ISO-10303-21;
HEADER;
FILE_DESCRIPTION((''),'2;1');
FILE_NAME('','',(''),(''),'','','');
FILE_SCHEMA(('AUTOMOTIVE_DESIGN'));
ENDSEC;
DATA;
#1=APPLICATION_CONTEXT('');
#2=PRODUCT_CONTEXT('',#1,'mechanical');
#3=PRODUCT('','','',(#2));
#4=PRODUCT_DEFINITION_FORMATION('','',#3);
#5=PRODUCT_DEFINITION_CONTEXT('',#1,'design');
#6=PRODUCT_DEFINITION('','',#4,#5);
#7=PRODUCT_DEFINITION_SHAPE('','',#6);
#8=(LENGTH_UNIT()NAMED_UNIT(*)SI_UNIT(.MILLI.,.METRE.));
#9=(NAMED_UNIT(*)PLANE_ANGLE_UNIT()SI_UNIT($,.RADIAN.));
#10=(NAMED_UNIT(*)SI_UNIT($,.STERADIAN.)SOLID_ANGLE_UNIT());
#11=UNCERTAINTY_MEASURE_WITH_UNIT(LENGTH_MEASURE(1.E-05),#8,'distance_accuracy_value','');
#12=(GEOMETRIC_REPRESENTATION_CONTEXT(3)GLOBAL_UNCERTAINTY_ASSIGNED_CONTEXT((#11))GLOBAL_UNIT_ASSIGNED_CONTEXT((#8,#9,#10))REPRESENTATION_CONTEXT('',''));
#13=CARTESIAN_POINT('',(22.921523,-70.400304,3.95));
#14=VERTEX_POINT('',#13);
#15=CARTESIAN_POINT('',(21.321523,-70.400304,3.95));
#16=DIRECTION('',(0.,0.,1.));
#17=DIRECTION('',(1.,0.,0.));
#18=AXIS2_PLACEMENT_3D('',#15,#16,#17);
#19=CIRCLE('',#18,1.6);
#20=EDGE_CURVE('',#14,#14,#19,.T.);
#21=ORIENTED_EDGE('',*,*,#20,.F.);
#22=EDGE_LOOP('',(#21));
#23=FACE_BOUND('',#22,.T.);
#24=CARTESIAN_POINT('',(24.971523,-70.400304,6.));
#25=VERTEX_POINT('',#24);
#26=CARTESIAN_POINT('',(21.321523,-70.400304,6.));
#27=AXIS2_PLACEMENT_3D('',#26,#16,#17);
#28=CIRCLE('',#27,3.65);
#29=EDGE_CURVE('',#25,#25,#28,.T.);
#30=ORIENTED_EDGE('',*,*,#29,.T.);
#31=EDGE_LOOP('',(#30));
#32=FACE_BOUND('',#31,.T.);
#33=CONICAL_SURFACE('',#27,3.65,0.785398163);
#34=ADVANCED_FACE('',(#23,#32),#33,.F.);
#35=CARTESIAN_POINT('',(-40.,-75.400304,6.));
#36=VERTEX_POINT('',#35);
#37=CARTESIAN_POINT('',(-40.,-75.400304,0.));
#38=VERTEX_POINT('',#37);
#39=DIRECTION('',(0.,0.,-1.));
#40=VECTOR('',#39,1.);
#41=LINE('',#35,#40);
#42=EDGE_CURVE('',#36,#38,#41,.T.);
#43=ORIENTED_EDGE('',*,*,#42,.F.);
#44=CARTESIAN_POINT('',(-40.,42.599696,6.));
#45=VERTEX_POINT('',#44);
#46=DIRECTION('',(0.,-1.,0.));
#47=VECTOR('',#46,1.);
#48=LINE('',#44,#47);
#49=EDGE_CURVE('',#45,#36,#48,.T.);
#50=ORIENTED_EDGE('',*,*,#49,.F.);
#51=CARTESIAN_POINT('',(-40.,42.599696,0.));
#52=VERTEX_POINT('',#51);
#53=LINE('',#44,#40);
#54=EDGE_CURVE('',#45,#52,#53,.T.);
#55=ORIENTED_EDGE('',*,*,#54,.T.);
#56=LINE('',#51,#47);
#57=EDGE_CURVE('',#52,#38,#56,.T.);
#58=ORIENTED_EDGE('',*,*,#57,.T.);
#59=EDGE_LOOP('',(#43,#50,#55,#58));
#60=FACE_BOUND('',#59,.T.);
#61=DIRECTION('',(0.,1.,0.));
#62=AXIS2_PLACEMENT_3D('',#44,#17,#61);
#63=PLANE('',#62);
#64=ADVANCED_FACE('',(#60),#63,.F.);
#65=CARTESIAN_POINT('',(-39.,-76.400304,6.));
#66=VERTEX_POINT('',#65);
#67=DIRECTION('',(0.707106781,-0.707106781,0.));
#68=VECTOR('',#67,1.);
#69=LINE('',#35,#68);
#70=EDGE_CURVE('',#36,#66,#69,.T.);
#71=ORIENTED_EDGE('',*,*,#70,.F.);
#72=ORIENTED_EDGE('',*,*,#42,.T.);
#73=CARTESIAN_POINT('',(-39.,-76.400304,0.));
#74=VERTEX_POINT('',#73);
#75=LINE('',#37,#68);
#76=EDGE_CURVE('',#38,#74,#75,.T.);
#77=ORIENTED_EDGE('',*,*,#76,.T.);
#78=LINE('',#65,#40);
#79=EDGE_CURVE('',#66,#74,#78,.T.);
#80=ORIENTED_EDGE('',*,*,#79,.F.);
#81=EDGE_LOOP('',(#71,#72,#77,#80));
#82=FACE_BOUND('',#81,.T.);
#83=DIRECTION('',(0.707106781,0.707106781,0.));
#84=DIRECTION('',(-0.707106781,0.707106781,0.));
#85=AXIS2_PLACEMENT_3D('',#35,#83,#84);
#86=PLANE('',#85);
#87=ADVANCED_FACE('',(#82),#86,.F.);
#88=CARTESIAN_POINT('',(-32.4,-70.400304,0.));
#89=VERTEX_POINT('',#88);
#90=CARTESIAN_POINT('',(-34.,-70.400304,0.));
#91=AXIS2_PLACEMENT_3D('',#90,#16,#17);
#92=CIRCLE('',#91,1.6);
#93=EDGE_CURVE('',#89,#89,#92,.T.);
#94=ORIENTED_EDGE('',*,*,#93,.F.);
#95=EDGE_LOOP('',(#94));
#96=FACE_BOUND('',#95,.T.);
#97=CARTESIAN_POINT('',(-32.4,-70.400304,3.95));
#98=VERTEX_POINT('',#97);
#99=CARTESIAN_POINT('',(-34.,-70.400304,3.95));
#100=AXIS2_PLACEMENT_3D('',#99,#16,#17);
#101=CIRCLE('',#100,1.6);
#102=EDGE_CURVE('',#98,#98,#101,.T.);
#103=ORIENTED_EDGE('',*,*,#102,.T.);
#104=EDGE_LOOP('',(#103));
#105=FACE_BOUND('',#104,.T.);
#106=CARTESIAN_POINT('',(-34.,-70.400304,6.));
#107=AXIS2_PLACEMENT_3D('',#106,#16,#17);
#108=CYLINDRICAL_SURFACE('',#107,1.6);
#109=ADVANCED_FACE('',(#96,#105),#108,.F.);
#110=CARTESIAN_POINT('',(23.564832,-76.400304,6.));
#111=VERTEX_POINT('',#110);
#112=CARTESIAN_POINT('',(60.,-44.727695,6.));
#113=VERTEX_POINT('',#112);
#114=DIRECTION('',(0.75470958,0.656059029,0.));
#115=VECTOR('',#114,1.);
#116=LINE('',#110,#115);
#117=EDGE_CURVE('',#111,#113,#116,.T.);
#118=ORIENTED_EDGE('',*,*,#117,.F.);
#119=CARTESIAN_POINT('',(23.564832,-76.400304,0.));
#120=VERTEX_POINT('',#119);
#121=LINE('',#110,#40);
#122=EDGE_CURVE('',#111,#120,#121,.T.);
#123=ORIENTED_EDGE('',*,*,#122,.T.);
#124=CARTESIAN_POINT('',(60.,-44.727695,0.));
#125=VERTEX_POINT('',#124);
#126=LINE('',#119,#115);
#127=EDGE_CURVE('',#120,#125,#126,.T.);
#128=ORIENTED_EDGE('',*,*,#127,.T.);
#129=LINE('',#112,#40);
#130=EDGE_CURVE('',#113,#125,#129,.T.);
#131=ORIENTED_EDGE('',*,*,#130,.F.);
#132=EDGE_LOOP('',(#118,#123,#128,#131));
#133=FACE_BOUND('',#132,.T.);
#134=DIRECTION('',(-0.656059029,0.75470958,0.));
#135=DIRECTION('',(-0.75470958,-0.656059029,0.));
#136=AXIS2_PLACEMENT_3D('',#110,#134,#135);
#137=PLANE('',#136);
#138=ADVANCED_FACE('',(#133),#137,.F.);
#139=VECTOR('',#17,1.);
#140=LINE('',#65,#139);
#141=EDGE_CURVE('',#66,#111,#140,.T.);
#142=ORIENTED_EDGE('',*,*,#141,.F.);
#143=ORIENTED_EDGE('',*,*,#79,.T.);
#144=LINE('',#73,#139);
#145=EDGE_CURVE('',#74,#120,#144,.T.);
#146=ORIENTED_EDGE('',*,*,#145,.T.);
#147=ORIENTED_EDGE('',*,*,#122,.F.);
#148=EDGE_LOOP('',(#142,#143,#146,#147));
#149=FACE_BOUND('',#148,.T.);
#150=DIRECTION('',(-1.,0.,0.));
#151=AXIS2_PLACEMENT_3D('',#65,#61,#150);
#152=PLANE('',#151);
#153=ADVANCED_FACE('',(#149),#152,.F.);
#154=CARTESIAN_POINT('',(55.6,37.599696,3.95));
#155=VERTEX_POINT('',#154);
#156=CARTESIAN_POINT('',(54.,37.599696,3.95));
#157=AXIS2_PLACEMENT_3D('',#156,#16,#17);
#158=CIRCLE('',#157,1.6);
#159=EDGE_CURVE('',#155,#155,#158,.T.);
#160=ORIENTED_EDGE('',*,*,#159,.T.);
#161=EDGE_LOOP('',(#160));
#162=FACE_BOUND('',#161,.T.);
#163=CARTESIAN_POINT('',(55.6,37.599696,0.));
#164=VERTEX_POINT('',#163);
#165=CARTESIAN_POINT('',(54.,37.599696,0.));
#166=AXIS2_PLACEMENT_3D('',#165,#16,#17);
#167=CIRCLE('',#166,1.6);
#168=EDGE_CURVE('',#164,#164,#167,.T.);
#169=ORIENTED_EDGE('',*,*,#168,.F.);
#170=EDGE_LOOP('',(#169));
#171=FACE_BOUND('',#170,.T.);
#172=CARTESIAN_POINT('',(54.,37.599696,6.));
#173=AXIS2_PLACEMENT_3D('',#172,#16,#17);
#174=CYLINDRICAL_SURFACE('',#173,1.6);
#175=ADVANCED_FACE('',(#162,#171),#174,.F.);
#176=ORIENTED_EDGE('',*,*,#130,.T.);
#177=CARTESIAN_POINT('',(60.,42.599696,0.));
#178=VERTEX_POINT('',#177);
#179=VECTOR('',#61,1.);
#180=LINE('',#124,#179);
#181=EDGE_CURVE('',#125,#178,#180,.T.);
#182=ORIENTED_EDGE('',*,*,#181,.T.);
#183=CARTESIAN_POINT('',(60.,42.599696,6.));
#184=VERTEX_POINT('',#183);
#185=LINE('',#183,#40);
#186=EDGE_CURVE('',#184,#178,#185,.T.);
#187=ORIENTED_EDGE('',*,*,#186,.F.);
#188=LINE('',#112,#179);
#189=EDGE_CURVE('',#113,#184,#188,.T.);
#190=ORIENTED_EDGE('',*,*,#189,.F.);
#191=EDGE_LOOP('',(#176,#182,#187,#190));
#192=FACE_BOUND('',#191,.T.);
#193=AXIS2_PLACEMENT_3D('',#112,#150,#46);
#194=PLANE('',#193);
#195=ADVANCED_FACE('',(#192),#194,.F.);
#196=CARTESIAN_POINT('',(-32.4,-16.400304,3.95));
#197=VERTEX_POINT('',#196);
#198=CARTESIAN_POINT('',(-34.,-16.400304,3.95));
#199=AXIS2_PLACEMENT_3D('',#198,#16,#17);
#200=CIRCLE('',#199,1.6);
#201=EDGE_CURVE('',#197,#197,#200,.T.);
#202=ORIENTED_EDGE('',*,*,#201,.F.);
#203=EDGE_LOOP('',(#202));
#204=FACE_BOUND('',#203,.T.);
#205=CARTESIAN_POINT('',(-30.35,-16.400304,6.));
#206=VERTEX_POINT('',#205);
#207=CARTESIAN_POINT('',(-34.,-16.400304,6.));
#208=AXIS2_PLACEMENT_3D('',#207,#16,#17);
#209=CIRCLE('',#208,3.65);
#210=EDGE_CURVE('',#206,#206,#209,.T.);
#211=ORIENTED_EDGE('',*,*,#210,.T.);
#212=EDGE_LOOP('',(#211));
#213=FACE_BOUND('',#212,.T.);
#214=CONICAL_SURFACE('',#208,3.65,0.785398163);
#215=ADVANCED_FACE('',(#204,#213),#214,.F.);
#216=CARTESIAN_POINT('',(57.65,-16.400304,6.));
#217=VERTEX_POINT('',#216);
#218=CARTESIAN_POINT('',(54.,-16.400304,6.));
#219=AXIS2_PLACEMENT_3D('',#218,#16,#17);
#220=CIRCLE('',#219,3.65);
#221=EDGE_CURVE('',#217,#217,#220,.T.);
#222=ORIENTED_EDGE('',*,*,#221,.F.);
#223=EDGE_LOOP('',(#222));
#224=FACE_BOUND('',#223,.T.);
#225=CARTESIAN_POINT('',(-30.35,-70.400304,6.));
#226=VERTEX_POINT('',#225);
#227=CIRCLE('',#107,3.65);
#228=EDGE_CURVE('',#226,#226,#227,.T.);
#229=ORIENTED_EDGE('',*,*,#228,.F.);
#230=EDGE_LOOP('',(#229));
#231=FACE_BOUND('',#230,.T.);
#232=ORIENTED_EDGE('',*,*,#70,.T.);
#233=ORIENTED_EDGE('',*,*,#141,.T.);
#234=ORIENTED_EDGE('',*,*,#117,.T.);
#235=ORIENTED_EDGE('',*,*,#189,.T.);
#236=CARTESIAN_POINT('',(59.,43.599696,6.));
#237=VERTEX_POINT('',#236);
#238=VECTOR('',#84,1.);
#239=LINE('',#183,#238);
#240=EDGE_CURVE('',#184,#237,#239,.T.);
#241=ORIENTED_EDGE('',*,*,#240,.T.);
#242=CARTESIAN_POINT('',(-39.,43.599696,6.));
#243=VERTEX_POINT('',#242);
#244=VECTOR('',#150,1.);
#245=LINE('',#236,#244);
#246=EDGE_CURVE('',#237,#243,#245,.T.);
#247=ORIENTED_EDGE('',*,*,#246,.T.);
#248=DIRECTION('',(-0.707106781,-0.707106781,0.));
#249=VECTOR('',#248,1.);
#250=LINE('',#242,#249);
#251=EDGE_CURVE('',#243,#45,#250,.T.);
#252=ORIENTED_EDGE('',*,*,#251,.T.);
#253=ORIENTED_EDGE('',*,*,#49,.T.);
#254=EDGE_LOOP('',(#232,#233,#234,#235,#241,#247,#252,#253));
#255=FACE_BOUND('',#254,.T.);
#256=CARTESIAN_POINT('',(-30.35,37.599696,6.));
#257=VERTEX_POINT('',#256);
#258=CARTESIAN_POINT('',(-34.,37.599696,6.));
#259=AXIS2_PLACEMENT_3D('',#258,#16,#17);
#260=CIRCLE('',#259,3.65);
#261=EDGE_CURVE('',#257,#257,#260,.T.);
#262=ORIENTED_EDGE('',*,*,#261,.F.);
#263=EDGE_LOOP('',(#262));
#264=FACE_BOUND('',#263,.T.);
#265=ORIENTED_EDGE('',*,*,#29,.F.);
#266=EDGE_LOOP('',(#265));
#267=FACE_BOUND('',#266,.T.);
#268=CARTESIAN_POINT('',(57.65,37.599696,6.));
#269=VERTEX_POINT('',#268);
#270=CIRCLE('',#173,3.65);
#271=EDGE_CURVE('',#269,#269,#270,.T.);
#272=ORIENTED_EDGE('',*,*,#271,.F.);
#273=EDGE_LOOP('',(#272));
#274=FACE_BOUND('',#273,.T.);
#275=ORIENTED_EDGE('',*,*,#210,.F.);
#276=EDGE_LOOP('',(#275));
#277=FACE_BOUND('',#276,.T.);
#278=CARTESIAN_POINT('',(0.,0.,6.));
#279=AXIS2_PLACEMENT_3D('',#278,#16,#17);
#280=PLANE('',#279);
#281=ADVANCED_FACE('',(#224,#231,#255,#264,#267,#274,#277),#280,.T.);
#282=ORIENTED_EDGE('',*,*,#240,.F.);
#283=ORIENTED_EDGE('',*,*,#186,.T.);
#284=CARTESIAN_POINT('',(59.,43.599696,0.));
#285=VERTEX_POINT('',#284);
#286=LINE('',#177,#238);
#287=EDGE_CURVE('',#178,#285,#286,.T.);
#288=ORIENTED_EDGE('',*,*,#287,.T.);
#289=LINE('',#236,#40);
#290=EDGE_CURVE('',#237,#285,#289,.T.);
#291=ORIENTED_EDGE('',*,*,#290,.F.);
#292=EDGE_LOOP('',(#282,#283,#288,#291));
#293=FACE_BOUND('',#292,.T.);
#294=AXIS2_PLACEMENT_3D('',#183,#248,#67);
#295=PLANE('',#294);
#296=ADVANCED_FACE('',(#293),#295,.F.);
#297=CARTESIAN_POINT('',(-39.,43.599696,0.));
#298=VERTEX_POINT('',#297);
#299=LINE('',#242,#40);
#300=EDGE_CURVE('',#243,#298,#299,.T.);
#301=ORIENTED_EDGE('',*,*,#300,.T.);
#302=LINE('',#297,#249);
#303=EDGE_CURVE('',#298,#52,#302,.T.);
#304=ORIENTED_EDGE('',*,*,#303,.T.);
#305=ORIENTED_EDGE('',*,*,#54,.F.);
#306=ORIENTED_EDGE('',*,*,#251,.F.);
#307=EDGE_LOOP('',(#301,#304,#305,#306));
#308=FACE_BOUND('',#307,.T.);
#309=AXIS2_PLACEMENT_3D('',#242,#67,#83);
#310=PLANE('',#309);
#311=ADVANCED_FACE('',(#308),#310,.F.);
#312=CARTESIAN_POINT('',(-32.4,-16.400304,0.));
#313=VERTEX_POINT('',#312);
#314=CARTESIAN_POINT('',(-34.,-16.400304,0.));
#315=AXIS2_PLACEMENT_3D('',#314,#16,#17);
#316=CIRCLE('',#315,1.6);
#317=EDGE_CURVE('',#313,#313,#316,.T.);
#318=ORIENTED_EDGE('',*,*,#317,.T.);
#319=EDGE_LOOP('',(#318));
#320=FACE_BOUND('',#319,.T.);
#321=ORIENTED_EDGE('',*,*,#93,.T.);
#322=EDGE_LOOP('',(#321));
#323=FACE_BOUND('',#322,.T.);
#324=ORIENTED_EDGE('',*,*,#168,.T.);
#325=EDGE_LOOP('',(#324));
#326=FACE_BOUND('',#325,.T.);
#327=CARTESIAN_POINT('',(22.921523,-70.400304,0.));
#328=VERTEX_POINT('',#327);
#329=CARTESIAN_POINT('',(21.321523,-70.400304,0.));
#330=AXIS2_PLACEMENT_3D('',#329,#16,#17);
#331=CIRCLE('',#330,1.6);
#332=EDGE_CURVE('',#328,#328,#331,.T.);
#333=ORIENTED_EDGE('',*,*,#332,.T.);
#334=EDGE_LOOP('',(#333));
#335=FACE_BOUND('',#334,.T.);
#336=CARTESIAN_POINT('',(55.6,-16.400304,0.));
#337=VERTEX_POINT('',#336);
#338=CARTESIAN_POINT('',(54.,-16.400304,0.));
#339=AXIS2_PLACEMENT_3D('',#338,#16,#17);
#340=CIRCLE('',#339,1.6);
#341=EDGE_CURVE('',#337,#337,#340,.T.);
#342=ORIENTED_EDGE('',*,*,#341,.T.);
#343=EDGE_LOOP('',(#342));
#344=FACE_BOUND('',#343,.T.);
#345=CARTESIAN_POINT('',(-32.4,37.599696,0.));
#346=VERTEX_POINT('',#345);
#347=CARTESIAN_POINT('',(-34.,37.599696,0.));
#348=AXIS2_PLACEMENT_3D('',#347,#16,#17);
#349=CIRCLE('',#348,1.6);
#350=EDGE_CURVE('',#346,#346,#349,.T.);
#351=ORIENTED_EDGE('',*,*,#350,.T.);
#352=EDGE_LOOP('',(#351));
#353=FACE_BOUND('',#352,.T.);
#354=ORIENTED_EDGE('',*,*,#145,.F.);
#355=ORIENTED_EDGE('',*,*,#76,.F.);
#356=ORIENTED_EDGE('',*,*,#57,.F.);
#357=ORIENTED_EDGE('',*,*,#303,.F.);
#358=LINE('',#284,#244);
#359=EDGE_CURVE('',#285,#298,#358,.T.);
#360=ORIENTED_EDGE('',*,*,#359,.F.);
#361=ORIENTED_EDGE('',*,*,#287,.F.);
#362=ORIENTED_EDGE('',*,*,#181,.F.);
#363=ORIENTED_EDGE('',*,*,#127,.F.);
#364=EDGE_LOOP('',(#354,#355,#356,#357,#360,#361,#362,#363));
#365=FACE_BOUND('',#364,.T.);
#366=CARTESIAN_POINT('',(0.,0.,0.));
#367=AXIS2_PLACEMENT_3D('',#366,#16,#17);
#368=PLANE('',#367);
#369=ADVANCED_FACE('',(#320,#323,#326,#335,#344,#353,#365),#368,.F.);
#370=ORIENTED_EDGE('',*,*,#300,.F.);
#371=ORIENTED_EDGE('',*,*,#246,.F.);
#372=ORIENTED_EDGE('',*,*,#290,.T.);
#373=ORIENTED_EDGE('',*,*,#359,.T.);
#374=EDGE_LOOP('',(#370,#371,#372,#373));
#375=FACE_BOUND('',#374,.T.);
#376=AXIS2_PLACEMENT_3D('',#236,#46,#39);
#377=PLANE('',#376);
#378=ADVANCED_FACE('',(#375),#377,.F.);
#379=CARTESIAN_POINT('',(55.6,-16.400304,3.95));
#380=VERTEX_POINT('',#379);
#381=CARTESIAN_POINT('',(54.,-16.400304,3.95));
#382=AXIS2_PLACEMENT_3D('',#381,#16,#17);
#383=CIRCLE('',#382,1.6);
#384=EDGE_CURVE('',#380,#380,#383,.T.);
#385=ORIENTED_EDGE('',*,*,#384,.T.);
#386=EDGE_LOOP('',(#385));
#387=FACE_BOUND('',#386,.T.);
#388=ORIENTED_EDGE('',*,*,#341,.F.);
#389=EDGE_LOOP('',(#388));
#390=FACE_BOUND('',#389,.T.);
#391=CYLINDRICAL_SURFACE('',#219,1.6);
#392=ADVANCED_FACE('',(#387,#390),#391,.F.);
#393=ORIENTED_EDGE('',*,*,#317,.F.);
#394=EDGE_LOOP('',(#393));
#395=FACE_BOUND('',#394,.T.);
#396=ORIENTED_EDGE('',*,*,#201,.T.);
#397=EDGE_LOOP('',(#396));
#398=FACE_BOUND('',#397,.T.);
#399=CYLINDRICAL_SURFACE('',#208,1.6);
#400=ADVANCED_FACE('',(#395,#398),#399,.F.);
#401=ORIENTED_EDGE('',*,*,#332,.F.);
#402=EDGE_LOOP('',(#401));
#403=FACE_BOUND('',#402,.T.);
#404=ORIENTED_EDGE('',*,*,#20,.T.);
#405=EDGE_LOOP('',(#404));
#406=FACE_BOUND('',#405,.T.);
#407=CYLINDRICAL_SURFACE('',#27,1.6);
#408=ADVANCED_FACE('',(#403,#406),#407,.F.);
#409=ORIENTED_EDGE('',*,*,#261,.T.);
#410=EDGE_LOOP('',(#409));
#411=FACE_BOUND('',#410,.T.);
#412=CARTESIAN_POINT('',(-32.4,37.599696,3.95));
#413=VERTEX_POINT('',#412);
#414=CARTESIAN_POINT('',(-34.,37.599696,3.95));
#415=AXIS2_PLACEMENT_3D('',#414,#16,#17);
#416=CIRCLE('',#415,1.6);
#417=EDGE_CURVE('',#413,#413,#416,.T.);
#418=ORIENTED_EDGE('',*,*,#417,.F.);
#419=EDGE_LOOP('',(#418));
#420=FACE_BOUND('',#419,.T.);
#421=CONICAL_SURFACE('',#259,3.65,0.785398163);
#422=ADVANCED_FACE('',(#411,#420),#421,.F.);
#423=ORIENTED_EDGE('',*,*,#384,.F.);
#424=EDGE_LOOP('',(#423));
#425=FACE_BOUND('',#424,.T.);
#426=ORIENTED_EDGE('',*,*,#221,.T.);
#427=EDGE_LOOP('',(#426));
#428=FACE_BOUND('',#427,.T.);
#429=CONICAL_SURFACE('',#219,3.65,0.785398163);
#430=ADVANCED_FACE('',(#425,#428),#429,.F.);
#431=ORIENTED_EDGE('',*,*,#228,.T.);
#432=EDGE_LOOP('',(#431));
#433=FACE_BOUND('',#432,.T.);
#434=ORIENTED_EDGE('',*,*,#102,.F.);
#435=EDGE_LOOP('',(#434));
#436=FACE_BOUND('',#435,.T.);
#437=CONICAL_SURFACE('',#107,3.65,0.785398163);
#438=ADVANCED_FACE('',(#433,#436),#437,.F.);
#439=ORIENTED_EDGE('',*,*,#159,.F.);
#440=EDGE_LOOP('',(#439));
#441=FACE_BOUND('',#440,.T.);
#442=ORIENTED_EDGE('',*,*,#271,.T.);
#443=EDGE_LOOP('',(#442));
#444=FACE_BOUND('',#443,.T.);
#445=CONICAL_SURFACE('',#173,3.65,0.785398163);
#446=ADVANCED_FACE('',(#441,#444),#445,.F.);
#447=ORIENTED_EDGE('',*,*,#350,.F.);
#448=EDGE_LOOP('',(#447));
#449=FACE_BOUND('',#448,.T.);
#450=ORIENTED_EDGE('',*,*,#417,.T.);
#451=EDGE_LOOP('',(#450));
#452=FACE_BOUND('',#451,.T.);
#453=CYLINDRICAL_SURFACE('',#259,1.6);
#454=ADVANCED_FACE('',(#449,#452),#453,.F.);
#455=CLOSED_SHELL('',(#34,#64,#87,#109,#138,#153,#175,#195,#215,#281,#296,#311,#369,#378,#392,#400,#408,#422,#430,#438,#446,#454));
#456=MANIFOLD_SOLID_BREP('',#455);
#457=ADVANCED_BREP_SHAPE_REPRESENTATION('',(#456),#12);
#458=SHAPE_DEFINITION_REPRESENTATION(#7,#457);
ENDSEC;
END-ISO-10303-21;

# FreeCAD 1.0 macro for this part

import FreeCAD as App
import Part
import Sketcher
Q = App.Units.Quantity


def add_polygon(sketch, points):
    """Adds a closed chain of lines whose ends are joined by coincident constraints."""
    first, n = sketch.GeometryCount, len(points)
    for a, b in zip(points, points[1:] + points[:1]):
        sketch.addGeometry(Part.LineSegment(App.Vector(*a, 0), App.Vector(*b, 0)), False)
    for i in range(n):
        sketch.addConstraint(Sketcher.Constraint("Coincident", first + i, 2, first + (i + 1) % n, 1))

doc = App.newDocument("Part")
body = doc.addObject("PartDesign::Body", "Body")

# Sketch on XY plane
sketch1 = body.newObject("Sketcher::SketchObject", "Sketch")
sketch1.AttachmentSupport = (doc.getObject("XY_Plane"), [""])
sketch1.MapMode = "FlatFace"
add_polygon(sketch1, [(-40, 42.6), (-40, -75.4), (-39, -76.4), (23.6, -76.4), (60, -44.7), (60, 42.6), (59, 43.6), (-39, 43.6)])  # lines 0-7
sketch1.addConstraint([
    Sketcher.Constraint("Vertical", 0),
    Sketcher.Constraint("Horizontal", 2),
    Sketcher.Constraint("Vertical", 4),
    Sketcher.Constraint("Horizontal", 6),
    Sketcher.Constraint("Parallel", 1, 5),
    Sketcher.Constraint("Perpendicular", 5, 7),
    Sketcher.Constraint("Horizontal", 4, 2, 7, 2),
    Sketcher.Constraint("Vertical", 1, 2, 6, 2),
    Sketcher.Constraint("Equal", 1, 5),
    Sketcher.Constraint("DistanceX", 6, 2, 6, 1, Q("98 mm")),
    Sketcher.Constraint("DistanceY", 0, 2, 0, 1, Q("118 mm")),
    Sketcher.Constraint("Angle", 3, Q("41 deg")),
    Sketcher.Constraint("DistanceX", 0, 2, -1, 1, Q("40 mm")),
    Sketcher.Constraint("DistanceX", 1, 2, -1, 1, Q("39 mm")),
    Sketcher.Constraint("DistanceX", 2, 1, 2, 2, Q("62.564832 mm")),
    Sketcher.Constraint("DistanceY", 0, 2, -1, 1, Q("75.400304 mm")),
])
pad1 = body.newObject("PartDesign::Pad", "Pad")
pad1.Profile = sketch1
pad1.Length = 6

# Sketch on XY plane
sketch2 = body.newObject("Sketcher::SketchObject", "Sketch001")
sketch2.AttachmentSupport = (doc.getObject("XY_Plane"), [""])
sketch2.MapMode = "FlatFace"
sketch2.AttachmentOffset = App.Placement(App.Vector(0, 0, 6), App.Rotation())
sketch2.addGeometry([
    Part.Circle(App.Vector(-34, 37.6, 0), App.Vector(0, 0, 1), 1.6),  # 0
    Part.Circle(App.Vector(54, 37.6, 0), App.Vector(0, 0, 1), 1.6),  # 1
    Part.Circle(App.Vector(54, -16.4, 0), App.Vector(0, 0, 1), 1.6),  # 2
    Part.Circle(App.Vector(-34, -16.4, 0), App.Vector(0, 0, 1), 1.6),  # 3
    Part.Circle(App.Vector(-34, -70.4, 0), App.Vector(0, 0, 1), 1.6),  # 4
    Part.Circle(App.Vector(21.3, -70.4, 0), App.Vector(0, 0, 1), 1.6),  # 5
], False)
sketch2.addConstraint([
    Sketcher.Constraint("Equal", 0, 1),
    Sketcher.Constraint("Equal", 1, 2),
    Sketcher.Constraint("Equal", 2, 3),
    Sketcher.Constraint("Equal", 3, 4),
    Sketcher.Constraint("Equal", 4, 5),
    Sketcher.Constraint("Horizontal", 0, 3, 1, 3),
    Sketcher.Constraint("Horizontal", 2, 3, 3, 3),
    Sketcher.Constraint("Horizontal", 4, 3, 5, 3),
    Sketcher.Constraint("Vertical", 1, 3, 2, 3),
    Sketcher.Constraint("Vertical", 0, 3, 3, 3),
    Sketcher.Constraint("Vertical", 3, 3, 4, 3),
    Sketcher.Constraint("Diameter", 0, Q("3.2 mm")),
    Sketcher.Constraint("DistanceX", 0, 3, -1, 1, Q("34 mm")),
    Sketcher.Constraint("DistanceX", -1, 1, 1, 3, Q("54 mm")),
    Sketcher.Constraint("DistanceY", 2, 3, 1, 3, Q("54 mm")),
    Sketcher.Constraint("DistanceY", 4, 3, 3, 3, Q("54 mm")),
    Sketcher.Constraint("DistanceY", -1, 1, 0, 3, Q("37.599696 mm")),
    Sketcher.Constraint("DistanceX", -1, 1, 5, 3, Q("21.321523 mm")),
])
doc.recompute()
hole = body.newObject("PartDesign::Hole", "Hole")
hole.Profile = sketch2
hole.ThreadType = "None"
hole.Diameter = 3.2
hole.DepthType = "ThroughAll"
hole.HoleCutType = "Countersink"
hole.HoleCutDiameter = 7.3
hole.HoleCutCountersinkAngle = 90

doc.recompute()
